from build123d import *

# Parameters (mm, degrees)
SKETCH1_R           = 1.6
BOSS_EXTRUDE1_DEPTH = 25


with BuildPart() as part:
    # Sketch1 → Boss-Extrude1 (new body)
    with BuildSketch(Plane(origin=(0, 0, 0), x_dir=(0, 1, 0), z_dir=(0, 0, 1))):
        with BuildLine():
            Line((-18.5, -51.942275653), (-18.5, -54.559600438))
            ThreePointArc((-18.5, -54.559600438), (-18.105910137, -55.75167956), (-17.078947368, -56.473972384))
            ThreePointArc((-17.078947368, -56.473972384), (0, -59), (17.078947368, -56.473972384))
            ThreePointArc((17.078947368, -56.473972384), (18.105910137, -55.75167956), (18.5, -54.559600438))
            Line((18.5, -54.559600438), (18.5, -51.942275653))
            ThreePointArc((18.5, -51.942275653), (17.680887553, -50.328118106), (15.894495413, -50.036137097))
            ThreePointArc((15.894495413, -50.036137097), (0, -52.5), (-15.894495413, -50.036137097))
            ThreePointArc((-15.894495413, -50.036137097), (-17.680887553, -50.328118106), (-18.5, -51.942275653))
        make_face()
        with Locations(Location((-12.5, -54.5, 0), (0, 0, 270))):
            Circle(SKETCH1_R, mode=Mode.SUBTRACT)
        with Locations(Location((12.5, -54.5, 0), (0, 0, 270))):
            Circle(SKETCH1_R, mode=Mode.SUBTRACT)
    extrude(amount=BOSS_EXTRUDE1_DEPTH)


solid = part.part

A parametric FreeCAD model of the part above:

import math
import FreeCAD as App
import Part
import Sketcher

V = App.Vector

doc = App.newDocument("Part")
params = doc.addObject("Spreadsheet::Sheet", "Params")
for row, (alias, value) in enumerate([
    ("sketch1_radius", "2 mm"),
    ("sketch1_radius2", "59 mm"),
    ("sketch1_diameter", "3.2 mm"),
    ("sketch1_radius3", "52.5 mm"),
    ("pad1_length", "25 mm"),
], start=1):
    params.set(f"A{row}", alias)
    params.set(f"B{row}", "=" + value)
    params.setAlias(f"B{row}", alias)

body = doc.addObject("PartDesign::Body", "Body")

sketch1 = doc.addObject("Sketcher::SketchObject", "Sketch")
body.addObject(sketch1)
sketch1.AttachmentSupport = (doc.XY_Plane, [""])
sketch1.MapMode = "FlatFace"
sketch1.addGeometry(Part.LineSegment(V(51.9, -18.5, 0), V(54.6, -18.5, 0)), False)
sketch1.addGeometry(Part.ArcOfCircle(Part.Circle(V(54.6, -16.5, 0), V(0, 0, 1), 2), math.radians(-90), math.radians(-17)), False)
sketch1.addGeometry(Part.ArcOfCircle(Part.Circle(V(0, 0, 0), V(0, 0, 1), 59), math.radians(-17), math.radians(17)), False)
sketch1.addGeometry(Part.ArcOfCircle(Part.Circle(V(54.6, 16.5, 0), V(0, 0, 1), 2), math.radians(17), math.radians(90)), False)
sketch1.addGeometry(Part.LineSegment(V(54.6, 18.5, 0), V(51.9, 18.5, 0)), False)
sketch1.addGeometry(Part.ArcOfCircle(Part.Circle(V(51.9, 16.5, 0), V(0, 0, 1), 2), math.radians(90), math.radians(198)), False)
sketch1.addGeometry(Part.ArcOfCircle(Part.Circle(V(0, 0, 0), V(0, 0, 1), 52.5), math.radians(-18), math.radians(18)), False)
sketch1.addGeometry(Part.ArcOfCircle(Part.Circle(V(51.9, -16.5, 0), V(0, 0, 1), 2), math.radians(162), math.radians(270)), False)
sketch1.addGeometry(Part.Circle(V(54.5, -12.5, 0), V(0, 0, 1), 1.6), False)
sketch1.addGeometry(Part.Circle(V(54.5, 12.5, 0), V(0, 0, 1), 1.6), False)
sketch1.addConstraint(Sketcher.Constraint("Tangent", 0, 2, 1, 1))
sketch1.addConstraint(Sketcher.Constraint("Tangent", 1, 2, 2, 1))
sketch1.addConstraint(Sketcher.Constraint("Tangent", 2, 2, 3, 1))
sketch1.addConstraint(Sketcher.Constraint("Tangent", 3, 2, 4, 1))
sketch1.addConstraint(Sketcher.Constraint("Tangent", 4, 2, 5, 1))
sketch1.addConstraint(Sketcher.Constraint("Tangent", 5, 2, 6, 2))
sketch1.addConstraint(Sketcher.Constraint("Tangent", 6, 1, 7, 1))
sketch1.addConstraint(Sketcher.Constraint("Tangent", 7, 2, 0, 1))
sketch1.addConstraint(Sketcher.Constraint("Horizontal", 0))
sketch1.addConstraint(Sketcher.Constraint("Horizontal", 4))
sketch1.addConstraint(Sketcher.Constraint("Coincident", 2, 3, -1, 1))
sketch1.addConstraint(Sketcher.Constraint("Coincident", 6, 3, -1, 1))
sketch1.addConstraint(Sketcher.Constraint("Equal", 1, 3))
sketch1.addConstraint(Sketcher.Constraint("Equal", 3, 5))
sketch1.addConstraint(Sketcher.Constraint("Equal", 5, 7))
sketch1.addConstraint(Sketcher.Constraint("Equal", 8, 9))
sketch1.addConstraint(Sketcher.Constraint("Symmetric", 8, 3, 9, 3, -1))
sketch1.addConstraint(Sketcher.Constraint("Vertical", 1, 3, 3, 3))
sketch1.addConstraint(Sketcher.Constraint("Radius", 1, 2.0))
sketch1.addConstraint(Sketcher.Constraint("Radius", 2, 59.0))
sketch1.addConstraint(Sketcher.Constraint("Diameter", 8, 3.2))
sketch1.addConstraint(Sketcher.Constraint("Radius", 6, 52.5))
sketch1.addConstraint(Sketcher.Constraint("DistanceY", 1, 3, 3, 3, 33.0))
sketch1.addConstraint(Sketcher.Constraint("DistanceY", 1, 3, 8, 3, 4.0))
sketch1.addConstraint(Sketcher.Constraint("DistanceX", -1, 1, 8, 3, 54.5))
sketch1.setExpression("Constraints[18]", "Params.sketch1_radius")
sketch1.setExpression("Constraints[19]", "Params.sketch1_radius2")
sketch1.setExpression("Constraints[20]", "Params.sketch1_diameter")
sketch1.setExpression("Constraints[21]", "Params.sketch1_radius3")
pad1 = doc.addObject("PartDesign::Pad", "Pad")
body.addObject(pad1)
pad1.Profile = sketch1
pad1.setExpression("Length", "Params.pad1_length")

doc.recompute()
